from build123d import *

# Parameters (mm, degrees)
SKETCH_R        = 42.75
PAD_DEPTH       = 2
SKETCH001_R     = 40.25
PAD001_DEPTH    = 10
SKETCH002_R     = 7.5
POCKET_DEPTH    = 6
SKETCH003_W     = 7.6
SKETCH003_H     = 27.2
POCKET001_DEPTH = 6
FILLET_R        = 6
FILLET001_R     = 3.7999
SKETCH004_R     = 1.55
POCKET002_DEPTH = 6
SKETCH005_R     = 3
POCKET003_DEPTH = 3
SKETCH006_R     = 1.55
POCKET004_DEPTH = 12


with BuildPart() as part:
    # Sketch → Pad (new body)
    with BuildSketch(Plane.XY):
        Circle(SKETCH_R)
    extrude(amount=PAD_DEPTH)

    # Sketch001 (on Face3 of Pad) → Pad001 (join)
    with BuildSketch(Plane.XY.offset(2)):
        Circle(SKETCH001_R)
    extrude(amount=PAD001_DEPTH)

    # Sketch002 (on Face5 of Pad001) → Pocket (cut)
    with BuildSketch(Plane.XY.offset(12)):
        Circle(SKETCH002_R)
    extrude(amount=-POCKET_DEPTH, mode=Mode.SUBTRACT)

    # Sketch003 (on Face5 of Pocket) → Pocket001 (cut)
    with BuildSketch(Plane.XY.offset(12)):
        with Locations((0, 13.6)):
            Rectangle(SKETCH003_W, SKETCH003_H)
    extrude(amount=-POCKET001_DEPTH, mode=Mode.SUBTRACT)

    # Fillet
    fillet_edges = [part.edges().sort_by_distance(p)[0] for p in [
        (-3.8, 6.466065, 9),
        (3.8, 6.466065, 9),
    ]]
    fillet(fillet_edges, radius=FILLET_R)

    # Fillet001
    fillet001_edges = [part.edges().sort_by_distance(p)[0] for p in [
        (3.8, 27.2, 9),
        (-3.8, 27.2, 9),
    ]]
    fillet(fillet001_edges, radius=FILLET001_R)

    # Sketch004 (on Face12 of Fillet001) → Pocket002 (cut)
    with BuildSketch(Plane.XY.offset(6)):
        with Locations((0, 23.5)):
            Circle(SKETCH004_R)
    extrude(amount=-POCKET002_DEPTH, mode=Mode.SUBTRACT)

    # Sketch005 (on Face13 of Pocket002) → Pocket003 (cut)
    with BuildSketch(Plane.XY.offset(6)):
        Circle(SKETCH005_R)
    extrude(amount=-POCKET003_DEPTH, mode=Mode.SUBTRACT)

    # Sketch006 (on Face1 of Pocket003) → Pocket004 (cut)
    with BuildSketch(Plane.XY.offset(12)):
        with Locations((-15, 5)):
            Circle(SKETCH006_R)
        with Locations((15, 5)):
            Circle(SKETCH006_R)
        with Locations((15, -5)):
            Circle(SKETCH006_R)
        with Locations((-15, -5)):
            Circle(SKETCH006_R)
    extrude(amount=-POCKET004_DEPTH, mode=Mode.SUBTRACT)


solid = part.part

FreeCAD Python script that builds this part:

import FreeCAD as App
import Part
import Sketcher
Q = App.Units.Quantity


def edges_at(feature, points):
    """Names of the edges that pass closest to the given points."""
    edges = feature.Shape.Edges
    near = lambda p: min(range(len(edges)), key=lambda i: edges[i].distToShape(Part.Vertex(*p))[0])
    return sorted({f"Edge{near(p) + 1}" for p in points})


def add_polygon(sketch, points):
    """Adds a closed chain of lines whose ends are joined by coincident constraints."""
    first, n = sketch.GeometryCount, len(points)
    for a, b in zip(points, points[1:] + points[:1]):
        sketch.addGeometry(Part.LineSegment(App.Vector(*a, 0), App.Vector(*b, 0)), False)
    for i in range(n):
        sketch.addConstraint(Sketcher.Constraint("Coincident", first + i, 2, first + (i + 1) % n, 1))

doc = App.newDocument("Part")
body = doc.addObject("PartDesign::Body", "Body")

# Sketch on XY plane
sketch1 = body.newObject("Sketcher::SketchObject", "Sketch")
sketch1.AttachmentSupport = (doc.getObject("XY_Plane"), [""])
sketch1.MapMode = "FlatFace"
sketch1.addGeometry(Part.Circle(App.Vector(0, 0, 0), App.Vector(0, 0, 1), 43), False)
sketch1.addConstraint(Sketcher.Constraint("Coincident", 0, 3, -1, 1))
sketch1.addConstraint(Sketcher.Constraint("Diameter", 0, Q("85.5 mm")))
pad1 = body.newObject("PartDesign::Pad", "Pad")
pad1.Profile = sketch1
pad1.Length = 2

# Sketch on XY plane
sketch2 = body.newObject("Sketcher::SketchObject", "Sketch001")
sketch2.AttachmentSupport = (doc.getObject("XY_Plane"), [""])
sketch2.MapMode = "FlatFace"
sketch2.AttachmentOffset = App.Placement(App.Vector(0, 0, 2), App.Rotation())
sketch2.addGeometry(Part.Circle(App.Vector(0, 0, 0), App.Vector(0, 0, 1), 40), False)
sketch2.addConstraint(Sketcher.Constraint("Coincident", 0, 3, -1, 1))
sketch2.addConstraint(Sketcher.Constraint("Diameter", 0, Q("80.5 mm")))
pad2 = body.newObject("PartDesign::Pad", "Pad001")
pad2.Profile = sketch2
pad2.Length = 10

# Sketch on XY plane
sketch3 = body.newObject("Sketcher::SketchObject", "Sketch002")
sketch3.AttachmentSupport = (doc.getObject("XY_Plane"), [""])
sketch3.MapMode = "FlatFace"
sketch3.AttachmentOffset = App.Placement(App.Vector(0, 0, 12), App.Rotation())
sketch3.addGeometry(Part.Circle(App.Vector(0, 0, 0), App.Vector(0, 0, 1), 8), False)
sketch3.addConstraint(Sketcher.Constraint("Coincident", 0, 3, -1, 1))
sketch3.addConstraint(Sketcher.Constraint("Diameter", 0, Q("15 mm")))
pocket1 = body.newObject("PartDesign::Pocket", "Pocket")
pocket1.Profile = sketch3
pocket1.Length = 6

# Sketch on XY plane
sketch4 = body.newObject("Sketcher::SketchObject", "Sketch003")
sketch4.AttachmentSupport = (doc.getObject("XY_Plane"), [""])
sketch4.MapMode = "FlatFace"
sketch4.AttachmentOffset = App.Placement(App.Vector(0, 0, 12), App.Rotation())
add_polygon(sketch4, [(-4, 27), (-4, 0), (4, 0), (4, 27)])  # lines 0-3
sketch4.addConstraint(Sketcher.Constraint("Vertical", 0))
sketch4.addConstraint(Sketcher.Constraint("Horizontal", 1))
sketch4.addConstraint(Sketcher.Constraint("Vertical", 2))
sketch4.addConstraint(Sketcher.Constraint("Horizontal", 3))
sketch4.addConstraint(Sketcher.Constraint("Symmetric", 0, 2, 1, 2, -1, 1))
sketch4.addConstraint(Sketcher.Constraint("DistanceX", 1, 1, 1, 2, Q("7.6 mm")))
sketch4.addConstraint(Sketcher.Constraint("DistanceY", 0, 2, 0, 1, Q("27.2 mm")))
pocket2 = body.newObject("PartDesign::Pocket", "Pocket001")
pocket2.Profile = sketch4
pocket2.Length = 6
doc.recompute()

fillet = body.newObject("PartDesign::Fillet", "Fillet")
fillet.Base = (pocket2, edges_at(pocket2, [(-3.8, 6.466, 9), (3.8, 6.466, 9)]))
fillet.Radius = 6
doc.recompute()

fillet2 = body.newObject("PartDesign::Fillet", "Fillet001")
fillet2.Base = (fillet, edges_at(fillet, [(3.8, 27.2, 9), (-3.8, 27.2, 9)]))
fillet2.Radius = 3.7999

# Sketch on XY plane
sketch5 = body.newObject("Sketcher::SketchObject", "Sketch004")
sketch5.AttachmentSupport = (doc.getObject("XY_Plane"), [""])
sketch5.MapMode = "FlatFace"
sketch5.AttachmentOffset = App.Placement(App.Vector(0, 0, 6), App.Rotation())
sketch5.addGeometry(Part.Circle(App.Vector(0, 23.5, 0), App.Vector(0, 0, 1), 1.6), False)
sketch5.addConstraint(Sketcher.Constraint("PointOnObject", 0, 3, -2))
sketch5.addConstraint(Sketcher.Constraint("Diameter", 0, Q("3.1 mm")))
sketch5.addConstraint(Sketcher.Constraint("DistanceY", -1, 1, 0, 3, Q("23.5 mm")))
pocket3 = body.newObject("PartDesign::Pocket", "Pocket002")
pocket3.Profile = sketch5
pocket3.Length = 6

# Sketch on XY plane
sketch6 = body.newObject("Sketcher::SketchObject", "Sketch005")
sketch6.AttachmentSupport = (doc.getObject("XY_Plane"), [""])
sketch6.MapMode = "FlatFace"
sketch6.AttachmentOffset = App.Placement(App.Vector(0, 0, 6), App.Rotation())
sketch6.addGeometry(Part.Circle(App.Vector(0, 0, 0), App.Vector(0, 0, 1), 3), False)
sketch6.addConstraint(Sketcher.Constraint("Coincident", 0, 3, -1, 1))
sketch6.addConstraint(Sketcher.Constraint("Diameter", 0, Q("6 mm")))
pocket4 = body.newObject("PartDesign::Pocket", "Pocket003")
pocket4.Profile = sketch6
pocket4.Length = 3

# Sketch on XY plane
sketch7 = body.newObject("Sketcher::SketchObject", "Sketch006")
sketch7.AttachmentSupport = (doc.getObject("XY_Plane"), [""])
sketch7.MapMode = "FlatFace"
sketch7.AttachmentOffset = App.Placement(App.Vector(0, 0, 12), App.Rotation())
sketch7.addGeometry(Part.Circle(App.Vector(-15, 5, 0), App.Vector(0, 0, 1), 1.6), False)
sketch7.addGeometry(Part.Circle(App.Vector(15, 5, 0), App.Vector(0, 0, 1), 1.6), False)
sketch7.addGeometry(Part.Circle(App.Vector(15, -5, 0), App.Vector(0, 0, 1), 1.6), False)
sketch7.addGeometry(Part.Circle(App.Vector(-15, -5, 0), App.Vector(0, 0, 1), 1.6), False)
sketch7.addConstraint(Sketcher.Constraint("Equal", 0, 1))
sketch7.addConstraint(Sketcher.Constraint("Equal", 1, 2))
sketch7.addConstraint(Sketcher.Constraint("Equal", 2, 3))
sketch7.addConstraint(Sketcher.Constraint("Symmetric", 0, 3, 2, 3, -1, 1))
sketch7.addConstraint(Sketcher.Constraint("Symmetric", 1, 3, 3, 3, -1, 1))
sketch7.addConstraint(Sketcher.Constraint("Symmetric", 0, 3, 1, 3, -2))
sketch7.addConstraint(Sketcher.Constraint("Diameter", 0, Q("3.1 mm")))
sketch7.addConstraint(Sketcher.Constraint("DistanceX", 0, 3, -1, 1, Q("15 mm")))
sketch7.addConstraint(Sketcher.Constraint("DistanceY", -1, 1, 0, 3, Q("5 mm")))
pocket5 = body.newObject("PartDesign::Pocket", "Pocket004")
pocket5.Profile = sketch7
pocket5.Length = 12

doc.recompute()
